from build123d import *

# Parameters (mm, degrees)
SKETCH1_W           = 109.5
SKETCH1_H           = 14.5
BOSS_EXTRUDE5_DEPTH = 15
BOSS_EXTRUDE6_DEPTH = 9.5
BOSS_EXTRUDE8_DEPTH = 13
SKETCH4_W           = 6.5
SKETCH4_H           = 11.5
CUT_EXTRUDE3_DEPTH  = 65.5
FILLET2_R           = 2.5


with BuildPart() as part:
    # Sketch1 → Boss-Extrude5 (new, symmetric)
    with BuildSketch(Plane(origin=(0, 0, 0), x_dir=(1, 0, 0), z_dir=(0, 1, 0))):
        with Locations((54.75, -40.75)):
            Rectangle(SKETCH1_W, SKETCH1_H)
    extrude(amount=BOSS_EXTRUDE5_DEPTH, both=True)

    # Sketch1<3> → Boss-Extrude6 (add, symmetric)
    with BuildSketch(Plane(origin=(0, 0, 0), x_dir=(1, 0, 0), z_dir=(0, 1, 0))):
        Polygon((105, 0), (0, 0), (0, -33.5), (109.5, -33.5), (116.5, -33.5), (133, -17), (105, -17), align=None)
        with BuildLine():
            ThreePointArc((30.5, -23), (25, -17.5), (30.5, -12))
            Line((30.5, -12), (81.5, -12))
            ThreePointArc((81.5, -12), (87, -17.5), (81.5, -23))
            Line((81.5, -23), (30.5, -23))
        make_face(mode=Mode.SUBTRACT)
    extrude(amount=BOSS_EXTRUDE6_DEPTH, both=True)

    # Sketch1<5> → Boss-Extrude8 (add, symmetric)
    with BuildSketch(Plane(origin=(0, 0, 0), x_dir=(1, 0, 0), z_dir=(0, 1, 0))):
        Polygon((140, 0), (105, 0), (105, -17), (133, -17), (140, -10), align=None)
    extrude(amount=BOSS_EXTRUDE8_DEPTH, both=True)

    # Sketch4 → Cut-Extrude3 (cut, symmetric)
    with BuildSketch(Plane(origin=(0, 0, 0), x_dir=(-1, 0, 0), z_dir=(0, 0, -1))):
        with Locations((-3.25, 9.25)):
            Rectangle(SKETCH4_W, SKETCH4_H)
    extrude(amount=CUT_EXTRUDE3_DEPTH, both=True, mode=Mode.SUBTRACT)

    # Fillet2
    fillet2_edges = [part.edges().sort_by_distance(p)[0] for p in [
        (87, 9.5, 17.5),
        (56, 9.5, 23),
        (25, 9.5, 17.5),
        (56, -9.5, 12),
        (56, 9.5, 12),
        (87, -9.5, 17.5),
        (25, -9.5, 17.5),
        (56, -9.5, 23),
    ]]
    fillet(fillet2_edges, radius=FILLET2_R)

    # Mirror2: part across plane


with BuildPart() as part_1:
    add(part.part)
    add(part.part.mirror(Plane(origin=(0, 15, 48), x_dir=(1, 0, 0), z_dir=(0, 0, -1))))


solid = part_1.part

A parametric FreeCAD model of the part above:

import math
import FreeCAD as App
import Part
import Sketcher
Q = App.Units.Quantity


def edges_at(feature, points):
    """Names of the edges that pass closest to the given points."""
    edges = feature.Shape.Edges
    near = lambda p: min(range(len(edges)), key=lambda i: edges[i].distToShape(Part.Vertex(*p))[0])
    return sorted({f"Edge{near(p) + 1}" for p in points})


def add_polygon(sketch, points):
    """Adds a closed chain of lines whose ends are joined by coincident constraints."""
    first, n = sketch.GeometryCount, len(points)
    for a, b in zip(points, points[1:] + points[:1]):
        sketch.addGeometry(Part.LineSegment(App.Vector(*a, 0), App.Vector(*b, 0)), False)
    for i in range(n):
        sketch.addConstraint(Sketcher.Constraint("Coincident", first + i, 2, first + (i + 1) % n, 1))

doc = App.newDocument("Part")
body = doc.addObject("PartDesign::Body", "Body")

sketch1 = body.newObject("Sketcher::SketchObject", "Sketch")
sketch1.AttachmentSupport = (doc.getObject("XZ_Plane"), [""])
sketch1.MapMode = "FlatFace"
add_polygon(sketch1, [(0, 34), (0, 48), (110, 48), (110, 34)])
sketch1.addConstraint(Sketcher.Constraint("Vertical", 0))
sketch1.addConstraint(Sketcher.Constraint("Horizontal", 1))
sketch1.addConstraint(Sketcher.Constraint("Vertical", 2))
sketch1.addConstraint(Sketcher.Constraint("Horizontal", 3))
sketch1.addConstraint(Sketcher.Constraint("PointOnObject", 0, 2, -2))
sketch1.addConstraint(Sketcher.Constraint("DistanceX", 1, 1, 1, 2, 109.5))
sketch1.addConstraint(Sketcher.Constraint("DistanceY", 0, 1, 0, 2, 14.5))
sketch1.addConstraint(Sketcher.Constraint("DistanceY", -1, 1, 0, 2, 48.0))
pad1 = body.newObject("PartDesign::Pad", "Pad")
pad1.Profile = sketch1
pad1.Length = 30
pad1.Midplane = True

sketch2 = body.newObject("Sketcher::SketchObject", "Sketch001")
sketch2.AttachmentSupport = (doc.getObject("XZ_Plane"), [""])
sketch2.MapMode = "FlatFace"
add_polygon(sketch2, [(105, 0), (0, 0), (0, 34), (116, 34), (133, 17), (105, 17)])
sketch2.addGeometry(Part.LineSegment(App.Vector(82, 23, 0), App.Vector(30, 23, 0)), False)
sketch2.addGeometry(Part.ArcOfCircle(Part.Circle(App.Vector(30, 18, 0), App.Vector(0, 0, 1), 6), math.radians(90), math.radians(270)), False)
sketch2.addGeometry(Part.LineSegment(App.Vector(30, 12, 0), App.Vector(82, 12, 0)), False)
sketch2.addGeometry(Part.ArcOfCircle(Part.Circle(App.Vector(82, 18, 0), App.Vector(0, 0, 1), 6), math.radians(-90), math.radians(90)), False)
sketch2.addConstraint(Sketcher.Constraint("Tangent", 6, 2, 7, 1))
sketch2.addConstraint(Sketcher.Constraint("Tangent", 7, 2, 8, 1))
sketch2.addConstraint(Sketcher.Constraint("Tangent", 8, 2, 9, 1))
sketch2.addConstraint(Sketcher.Constraint("Tangent", 9, 2, 6, 1))
sketch2.addConstraint(Sketcher.Constraint("Horizontal", 0))
sketch2.addConstraint(Sketcher.Constraint("Vertical", 1))
sketch2.addConstraint(Sketcher.Constraint("Horizontal", 2))
sketch2.addConstraint(Sketcher.Constraint("Horizontal", 4))
sketch2.addConstraint(Sketcher.Constraint("Vertical", 5))
sketch2.addConstraint(Sketcher.Constraint("Horizontal", 6))
sketch2.addConstraint(Sketcher.Constraint("Horizontal", 8))
sketch2.addConstraint(Sketcher.Constraint("Coincident", 0, 2, -1, 1))
sketch2.addConstraint(Sketcher.Constraint("Radius", 7, 5.5))
sketch2.addConstraint(Sketcher.Constraint("DistanceX", 0, 2, 0, 1, 105.0))
sketch2.addConstraint(Sketcher.Constraint("DistanceX", 4, 2, 4, 1, 28.0))
sketch2.addConstraint(Sketcher.Constraint("DistanceX", 6, 2, 6, 1, 51.0))
sketch2.addConstraint(Sketcher.Constraint("DistanceY", 5, 2, 5, 1, 17.0))
sketch2.addConstraint(Sketcher.Constraint("Angle", 3, Q("-45 deg")))
sketch2.addConstraint(Sketcher.Constraint("DistanceX", 2, 1, 2, 2, 116.5))
sketch2.addConstraint(Sketcher.Constraint("DistanceY", -1, 1, 6, 2, 23.0))
sketch2.addConstraint(Sketcher.Constraint("DistanceX", 9, 3, 2, 2, 35.0))
pad2 = body.newObject("PartDesign::Pad", "Pad001")
pad2.Profile = sketch2
pad2.Length = 19
pad2.Midplane = True

sketch3 = body.newObject("Sketcher::SketchObject", "Sketch002")
sketch3.AttachmentSupport = (doc.getObject("XZ_Plane"), [""])
sketch3.MapMode = "FlatFace"
add_polygon(sketch3, [(140, 0), (105, 0), (105, 17), (133, 17), (140, 10)])
sketch3.addConstraint(Sketcher.Constraint("Horizontal", 0))
sketch3.addConstraint(Sketcher.Constraint("Vertical", 1))
sketch3.addConstraint(Sketcher.Constraint("Horizontal", 2))
sketch3.addConstraint(Sketcher.Constraint("Vertical", 4))
sketch3.addConstraint(Sketcher.Constraint("PointOnObject", 0, 2, -1))
sketch3.addConstraint(Sketcher.Constraint("DistanceX", 0, 2, 0, 1, 35.0))
sketch3.addConstraint(Sketcher.Constraint("DistanceX", 2, 1, 2, 2, 28.0))
sketch3.addConstraint(Sketcher.Constraint("DistanceY", 1, 1, 1, 2, 17.0))
sketch3.addConstraint(Sketcher.Constraint("DistanceY", 4, 2, 4, 1, 10.0))
sketch3.addConstraint(Sketcher.Constraint("DistanceX", -1, 1, 0, 2, 105.0))
pad3 = body.newObject("PartDesign::Pad", "Pad002")
pad3.Profile = sketch3
pad3.Length = 26
pad3.Midplane = True

sketch4 = body.newObject("Sketcher::SketchObject", "Sketch003")
sketch4.AttachmentSupport = (doc.getObject("XY_Plane"), [""])
sketch4.MapMode = "FlatFace"
add_polygon(sketch4, [(6, 15), (6, 4), (0, 4), (0, 15)])
sketch4.addConstraint(Sketcher.Constraint("Vertical", 0))
sketch4.addConstraint(Sketcher.Constraint("Horizontal", 1))
sketch4.addConstraint(Sketcher.Constraint("Vertical", 2))
sketch4.addConstraint(Sketcher.Constraint("Horizontal", 3))
sketch4.addConstraint(Sketcher.Constraint("PointOnObject", 1, 2, -2))
sketch4.addConstraint(Sketcher.Constraint("DistanceX", 1, 2, 1, 1, 6.5))
sketch4.addConstraint(Sketcher.Constraint("DistanceY", 0, 2, 0, 1, 11.5))
sketch4.addConstraint(Sketcher.Constraint("DistanceY", -1, 1, 2, 2, 15.0))
pocket1 = body.newObject("PartDesign::Pocket", "Pocket")
pocket1.Profile = sketch4
pocket1.Length = 131
pocket1.Midplane = True
doc.recompute()

fillet = body.newObject("PartDesign::Fillet", "Fillet")
fillet.Base = (pocket1, edges_at(pocket1, [
    (87, 9.5, 17.5),
    (56, 9.5, 23),
    (25, 9.5, 17.5),
    (56, -9.5, 12),
    (56, 9.5, 12),
    (87, -9.5, 17.5),
    (25, -9.5, 17.5),
    (56, -9.5, 23),
]))
fillet.Radius = 2.5
body2 = doc.addObject("PartDesign::Body", "Body001")
doc.recompute()

body2.BaseFeature = body
doc.recompute()

mirroring = doc.addObject("Part::Mirroring", "Mirroring")
mirroring.Source = body
mirroring.Base = App.Vector(0, 15, 48)
mirroring.Normal = App.Vector(0, 0, -1)
body3 = doc.addObject("PartDesign::Body", "Body002")
body3.BaseFeature = mirroring
boolean = body2.newObject("PartDesign::Boolean", "Boolean")
boolean.Type = "Fuse"
boolean.addObjects([body3])
doc.recompute()
mirroring.Visibility = False

doc.recompute()
